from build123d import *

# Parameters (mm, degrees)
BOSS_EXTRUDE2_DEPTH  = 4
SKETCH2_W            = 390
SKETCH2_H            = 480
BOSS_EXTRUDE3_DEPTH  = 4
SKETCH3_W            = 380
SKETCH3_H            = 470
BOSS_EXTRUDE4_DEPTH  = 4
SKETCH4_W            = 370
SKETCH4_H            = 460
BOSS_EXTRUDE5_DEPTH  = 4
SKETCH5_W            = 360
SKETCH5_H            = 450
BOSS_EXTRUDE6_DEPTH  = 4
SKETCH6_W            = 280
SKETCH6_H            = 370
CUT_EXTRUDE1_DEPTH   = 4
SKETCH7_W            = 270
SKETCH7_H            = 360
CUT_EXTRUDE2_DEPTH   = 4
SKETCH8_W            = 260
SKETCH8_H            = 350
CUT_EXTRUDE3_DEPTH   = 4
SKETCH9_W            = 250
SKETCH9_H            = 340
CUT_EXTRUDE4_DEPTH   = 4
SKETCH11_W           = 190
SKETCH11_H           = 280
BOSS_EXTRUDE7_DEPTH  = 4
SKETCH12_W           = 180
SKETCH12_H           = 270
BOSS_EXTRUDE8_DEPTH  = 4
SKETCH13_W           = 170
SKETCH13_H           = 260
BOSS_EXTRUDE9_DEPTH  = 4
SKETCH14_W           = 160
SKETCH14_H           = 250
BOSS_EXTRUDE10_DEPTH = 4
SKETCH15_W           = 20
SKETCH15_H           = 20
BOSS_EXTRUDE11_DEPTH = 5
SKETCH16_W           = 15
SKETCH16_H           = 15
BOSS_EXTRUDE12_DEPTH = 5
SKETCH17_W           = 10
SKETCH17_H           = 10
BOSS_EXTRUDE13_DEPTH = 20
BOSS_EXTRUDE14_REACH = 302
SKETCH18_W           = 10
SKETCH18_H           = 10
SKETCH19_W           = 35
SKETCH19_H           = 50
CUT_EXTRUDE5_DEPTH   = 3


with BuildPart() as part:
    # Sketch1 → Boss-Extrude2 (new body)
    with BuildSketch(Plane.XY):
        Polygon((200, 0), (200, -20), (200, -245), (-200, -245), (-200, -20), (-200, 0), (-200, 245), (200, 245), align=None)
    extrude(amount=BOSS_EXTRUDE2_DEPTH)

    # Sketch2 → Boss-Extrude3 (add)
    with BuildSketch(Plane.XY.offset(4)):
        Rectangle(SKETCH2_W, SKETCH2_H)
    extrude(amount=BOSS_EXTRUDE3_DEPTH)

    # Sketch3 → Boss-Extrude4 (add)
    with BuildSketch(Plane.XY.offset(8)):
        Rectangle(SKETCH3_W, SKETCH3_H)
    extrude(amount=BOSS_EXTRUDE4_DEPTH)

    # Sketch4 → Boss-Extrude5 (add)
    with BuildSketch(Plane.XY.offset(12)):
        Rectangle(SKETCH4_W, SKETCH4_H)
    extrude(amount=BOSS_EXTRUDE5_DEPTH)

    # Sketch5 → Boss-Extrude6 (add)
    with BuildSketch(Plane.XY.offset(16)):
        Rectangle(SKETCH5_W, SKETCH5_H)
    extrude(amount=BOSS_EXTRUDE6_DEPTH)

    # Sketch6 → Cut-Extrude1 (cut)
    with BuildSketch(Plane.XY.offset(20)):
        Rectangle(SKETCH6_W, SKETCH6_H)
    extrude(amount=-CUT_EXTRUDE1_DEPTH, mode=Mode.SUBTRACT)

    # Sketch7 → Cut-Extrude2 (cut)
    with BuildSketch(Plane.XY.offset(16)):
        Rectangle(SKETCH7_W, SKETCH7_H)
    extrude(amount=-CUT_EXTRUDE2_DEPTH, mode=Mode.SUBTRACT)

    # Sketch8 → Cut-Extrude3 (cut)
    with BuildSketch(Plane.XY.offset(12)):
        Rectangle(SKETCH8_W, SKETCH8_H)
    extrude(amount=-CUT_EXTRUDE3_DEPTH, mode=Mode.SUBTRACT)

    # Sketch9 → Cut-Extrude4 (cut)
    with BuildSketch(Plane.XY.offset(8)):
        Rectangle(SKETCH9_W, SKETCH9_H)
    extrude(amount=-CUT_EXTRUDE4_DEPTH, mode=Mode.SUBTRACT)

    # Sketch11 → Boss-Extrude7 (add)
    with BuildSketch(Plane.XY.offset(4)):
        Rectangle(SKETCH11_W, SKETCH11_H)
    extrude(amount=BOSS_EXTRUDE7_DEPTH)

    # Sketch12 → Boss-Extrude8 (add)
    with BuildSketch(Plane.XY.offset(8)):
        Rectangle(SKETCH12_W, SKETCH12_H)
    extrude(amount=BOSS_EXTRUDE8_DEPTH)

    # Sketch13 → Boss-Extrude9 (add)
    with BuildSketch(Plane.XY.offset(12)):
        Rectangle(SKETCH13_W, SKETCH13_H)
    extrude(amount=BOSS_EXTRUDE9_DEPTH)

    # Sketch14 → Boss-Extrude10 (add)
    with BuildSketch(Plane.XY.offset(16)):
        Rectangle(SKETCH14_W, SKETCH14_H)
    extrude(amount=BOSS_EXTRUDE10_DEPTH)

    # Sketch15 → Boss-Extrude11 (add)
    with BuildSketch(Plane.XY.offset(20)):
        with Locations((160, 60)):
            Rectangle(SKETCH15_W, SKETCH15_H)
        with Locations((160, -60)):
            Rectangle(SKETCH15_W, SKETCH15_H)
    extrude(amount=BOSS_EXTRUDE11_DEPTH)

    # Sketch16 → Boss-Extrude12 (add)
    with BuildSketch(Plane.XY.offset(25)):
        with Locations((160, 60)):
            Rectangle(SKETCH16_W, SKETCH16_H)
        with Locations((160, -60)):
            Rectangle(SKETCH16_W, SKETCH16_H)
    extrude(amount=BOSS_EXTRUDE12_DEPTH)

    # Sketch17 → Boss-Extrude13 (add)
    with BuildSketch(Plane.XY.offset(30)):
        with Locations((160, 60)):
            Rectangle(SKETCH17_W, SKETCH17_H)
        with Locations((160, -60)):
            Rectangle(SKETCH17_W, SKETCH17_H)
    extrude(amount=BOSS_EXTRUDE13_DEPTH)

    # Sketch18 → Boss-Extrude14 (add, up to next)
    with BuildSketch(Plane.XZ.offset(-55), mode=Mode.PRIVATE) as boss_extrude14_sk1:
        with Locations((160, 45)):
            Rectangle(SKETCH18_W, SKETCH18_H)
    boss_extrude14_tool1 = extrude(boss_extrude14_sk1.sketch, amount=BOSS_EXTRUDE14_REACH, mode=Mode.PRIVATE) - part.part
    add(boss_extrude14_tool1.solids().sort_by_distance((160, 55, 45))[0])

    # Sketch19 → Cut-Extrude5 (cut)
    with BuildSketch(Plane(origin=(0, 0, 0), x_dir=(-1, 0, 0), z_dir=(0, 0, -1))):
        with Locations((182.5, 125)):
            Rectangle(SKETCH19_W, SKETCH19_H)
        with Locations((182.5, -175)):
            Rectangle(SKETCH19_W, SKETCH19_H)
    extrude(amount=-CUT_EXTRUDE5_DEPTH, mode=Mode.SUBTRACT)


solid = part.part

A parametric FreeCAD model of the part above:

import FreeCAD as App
import Part
import Sketcher


def add_polygon(sketch, points):
    """Adds a closed chain of lines whose ends are joined by coincident constraints."""
    first, n = sketch.GeometryCount, len(points)
    for a, b in zip(points, points[1:] + points[:1]):
        sketch.addGeometry(Part.LineSegment(App.Vector(*a, 0), App.Vector(*b, 0)), False)
    for i in range(n):
        sketch.addConstraint(Sketcher.Constraint("Coincident", first + i, 2, first + (i + 1) % n, 1))

doc = App.newDocument("Part")
body = doc.addObject("PartDesign::Body", "Body")

sketch1 = body.newObject("Sketcher::SketchObject", "Sketch")
sketch1.AttachmentSupport = (doc.getObject("XY_Plane"), [""])
sketch1.MapMode = "FlatFace"
add_polygon(sketch1, [(200, -245), (200, 245), (-200, 245), (-200, -245)])
sketch1.addConstraint([
    Sketcher.Constraint("Vertical", 0),
    Sketcher.Constraint("Horizontal", 1),
    Sketcher.Constraint("Vertical", 2),
    Sketcher.Constraint("Horizontal", 3),
    Sketcher.Constraint("Symmetric", 0, 2, 2, 2, -1, 1),
    Sketcher.Constraint("DistanceX", 1, 2, 1, 1, 400.0),
    Sketcher.Constraint("DistanceY", 0, 1, 0, 2, 490.0),
])
pad1 = body.newObject("PartDesign::Pad", "Pad")
pad1.Profile = sketch1
pad1.Length = 4

sketch2 = body.newObject("Sketcher::SketchObject", "Sketch001")
sketch2.AttachmentSupport = (doc.getObject("XY_Plane"), [""])
sketch2.MapMode = "FlatFace"
sketch2.AttachmentOffset = App.Placement(App.Vector(0, 0, 4), App.Rotation())
add_polygon(sketch2, [(-195, 240), (-195, -240), (195, -240), (195, 240)])
sketch2.addConstraint([
    Sketcher.Constraint("Vertical", 0),
    Sketcher.Constraint("Horizontal", 1),
    Sketcher.Constraint("Vertical", 2),
    Sketcher.Constraint("Horizontal", 3),
    Sketcher.Constraint("Symmetric", 0, 2, 2, 2, -1, 1),
    Sketcher.Constraint("DistanceX", 1, 1, 1, 2, 390.0),
    Sketcher.Constraint("DistanceY", 0, 2, 0, 1, 480.0),
])
pad2 = body.newObject("PartDesign::Pad", "Pad001")
pad2.Profile = sketch2
pad2.Length = 4

sketch3 = body.newObject("Sketcher::SketchObject", "Sketch002")
sketch3.AttachmentSupport = (doc.getObject("XY_Plane"), [""])
sketch3.MapMode = "FlatFace"
sketch3.AttachmentOffset = App.Placement(App.Vector(0, 0, 8), App.Rotation())
add_polygon(sketch3, [(-190, 235), (-190, -235), (190, -235), (190, 235)])
sketch3.addConstraint([
    Sketcher.Constraint("Vertical", 0),
    Sketcher.Constraint("Horizontal", 1),
    Sketcher.Constraint("Vertical", 2),
    Sketcher.Constraint("Horizontal", 3),
    Sketcher.Constraint("Symmetric", 0, 2, 2, 2, -1, 1),
    Sketcher.Constraint("DistanceX", 1, 1, 1, 2, 380.0),
    Sketcher.Constraint("DistanceY", 0, 2, 0, 1, 470.0),
])
pad3 = body.newObject("PartDesign::Pad", "Pad002")
pad3.Profile = sketch3
pad3.Length = 4

sketch4 = body.newObject("Sketcher::SketchObject", "Sketch003")
sketch4.AttachmentSupport = (doc.getObject("XY_Plane"), [""])
sketch4.MapMode = "FlatFace"
sketch4.AttachmentOffset = App.Placement(App.Vector(0, 0, 12), App.Rotation())
add_polygon(sketch4, [(-185, 230), (-185, -230), (185, -230), (185, 230)])
sketch4.addConstraint([
    Sketcher.Constraint("Vertical", 0),
    Sketcher.Constraint("Horizontal", 1),
    Sketcher.Constraint("Vertical", 2),
    Sketcher.Constraint("Horizontal", 3),
    Sketcher.Constraint("Symmetric", 0, 2, 2, 2, -1, 1),
    Sketcher.Constraint("DistanceX", 1, 1, 1, 2, 370.0),
    Sketcher.Constraint("DistanceY", 0, 2, 0, 1, 460.0),
])
pad4 = body.newObject("PartDesign::Pad", "Pad003")
pad4.Profile = sketch4
pad4.Length = 4

sketch5 = body.newObject("Sketcher::SketchObject", "Sketch004")
sketch5.AttachmentSupport = (doc.getObject("XY_Plane"), [""])
sketch5.MapMode = "FlatFace"
sketch5.AttachmentOffset = App.Placement(App.Vector(0, 0, 16), App.Rotation())
add_polygon(sketch5, [(-180, 225), (-180, -225), (180, -225), (180, 225)])
sketch5.addConstraint([
    Sketcher.Constraint("Vertical", 0),
    Sketcher.Constraint("Horizontal", 1),
    Sketcher.Constraint("Vertical", 2),
    Sketcher.Constraint("Horizontal", 3),
    Sketcher.Constraint("Symmetric", 0, 2, 2, 2, -1, 1),
    Sketcher.Constraint("DistanceX", 1, 1, 1, 2, 360.0),
    Sketcher.Constraint("DistanceY", 0, 2, 0, 1, 450.0),
])
pad5 = body.newObject("PartDesign::Pad", "Pad004")
pad5.Profile = sketch5
pad5.Length = 4

sketch6 = body.newObject("Sketcher::SketchObject", "Sketch005")
sketch6.AttachmentSupport = (doc.getObject("XY_Plane"), [""])
sketch6.MapMode = "FlatFace"
sketch6.AttachmentOffset = App.Placement(App.Vector(0, 0, 20), App.Rotation())
add_polygon(sketch6, [(-140, 185), (-140, -185), (140, -185), (140, 185)])
sketch6.addConstraint([
    Sketcher.Constraint("Vertical", 0),
    Sketcher.Constraint("Horizontal", 1),
    Sketcher.Constraint("Vertical", 2),
    Sketcher.Constraint("Horizontal", 3),
    Sketcher.Constraint("Symmetric", 0, 2, 2, 2, -1, 1),
    Sketcher.Constraint("DistanceX", 1, 1, 1, 2, 280.0),
    Sketcher.Constraint("DistanceY", 0, 2, 0, 1, 370.0),
])
pocket1 = body.newObject("PartDesign::Pocket", "Pocket")
pocket1.Profile = sketch6
pocket1.Length = 4

sketch7 = body.newObject("Sketcher::SketchObject", "Sketch006")
sketch7.AttachmentSupport = (doc.getObject("XY_Plane"), [""])
sketch7.MapMode = "FlatFace"
sketch7.AttachmentOffset = App.Placement(App.Vector(0, 0, 16), App.Rotation())
add_polygon(sketch7, [(-135, 180), (-135, -180), (135, -180), (135, 180)])
sketch7.addConstraint([
    Sketcher.Constraint("Vertical", 0),
    Sketcher.Constraint("Horizontal", 1),
    Sketcher.Constraint("Vertical", 2),
    Sketcher.Constraint("Horizontal", 3),
    Sketcher.Constraint("Symmetric", 0, 2, 2, 2, -1, 1),
    Sketcher.Constraint("DistanceX", 1, 1, 1, 2, 270.0),
    Sketcher.Constraint("DistanceY", 0, 2, 0, 1, 360.0),
])
pocket2 = body.newObject("PartDesign::Pocket", "Pocket001")
pocket2.Profile = sketch7
pocket2.Length = 4

sketch8 = body.newObject("Sketcher::SketchObject", "Sketch007")
sketch8.AttachmentSupport = (doc.getObject("XY_Plane"), [""])
sketch8.MapMode = "FlatFace"
sketch8.AttachmentOffset = App.Placement(App.Vector(0, 0, 12), App.Rotation())
add_polygon(sketch8, [(-130, 175), (-130, -175), (130, -175), (130, 175)])
sketch8.addConstraint([
    Sketcher.Constraint("Vertical", 0),
    Sketcher.Constraint("Horizontal", 1),
    Sketcher.Constraint("Vertical", 2),
    Sketcher.Constraint("Horizontal", 3),
    Sketcher.Constraint("Symmetric", 0, 2, 2, 2, -1, 1),
    Sketcher.Constraint("DistanceX", 1, 1, 1, 2, 260.0),
    Sketcher.Constraint("DistanceY", 0, 2, 0, 1, 350.0),
])
pocket3 = body.newObject("PartDesign::Pocket", "Pocket002")
pocket3.Profile = sketch8
pocket3.Length = 4

sketch9 = body.newObject("Sketcher::SketchObject", "Sketch008")
sketch9.AttachmentSupport = (doc.getObject("XY_Plane"), [""])
sketch9.MapMode = "FlatFace"
sketch9.AttachmentOffset = App.Placement(App.Vector(0, 0, 8), App.Rotation())
add_polygon(sketch9, [(-125, 170), (-125, -170), (125, -170), (125, 170)])
sketch9.addConstraint([
    Sketcher.Constraint("Vertical", 0),
    Sketcher.Constraint("Horizontal", 1),
    Sketcher.Constraint("Vertical", 2),
    Sketcher.Constraint("Horizontal", 3),
    Sketcher.Constraint("Symmetric", 0, 2, 2, 2, -1, 1),
    Sketcher.Constraint("DistanceX", 1, 1, 1, 2, 250.0),
    Sketcher.Constraint("DistanceY", 0, 2, 0, 1, 340.0),
])
pocket4 = body.newObject("PartDesign::Pocket", "Pocket003")
pocket4.Profile = sketch9
pocket4.Length = 4

sketch10 = body.newObject("Sketcher::SketchObject", "Sketch009")
sketch10.AttachmentSupport = (doc.getObject("XY_Plane"), [""])
sketch10.MapMode = "FlatFace"
sketch10.AttachmentOffset = App.Placement(App.Vector(0, 0, 4), App.Rotation())
add_polygon(sketch10, [(-95, 140), (-95, -140), (95, -140), (95, 140)])
sketch10.addConstraint([
    Sketcher.Constraint("Vertical", 0),
    Sketcher.Constraint("Horizontal", 1),
    Sketcher.Constraint("Vertical", 2),
    Sketcher.Constraint("Horizontal", 3),
    Sketcher.Constraint("Symmetric", 0, 2, 2, 2, -1, 1),
    Sketcher.Constraint("DistanceX", 1, 1, 1, 2, 190.0),
    Sketcher.Constraint("DistanceY", 0, 2, 0, 1, 280.0),
])
pad6 = body.newObject("PartDesign::Pad", "Pad005")
pad6.Profile = sketch10
pad6.Length = 4

sketch11 = body.newObject("Sketcher::SketchObject", "Sketch010")
sketch11.AttachmentSupport = (doc.getObject("XY_Plane"), [""])
sketch11.MapMode = "FlatFace"
sketch11.AttachmentOffset = App.Placement(App.Vector(0, 0, 8), App.Rotation())
add_polygon(sketch11, [(-90, 135), (-90, -135), (90, -135), (90, 135)])
sketch11.addConstraint([
    Sketcher.Constraint("Vertical", 0),
    Sketcher.Constraint("Horizontal", 1),
    Sketcher.Constraint("Vertical", 2),
    Sketcher.Constraint("Horizontal", 3),
    Sketcher.Constraint("Symmetric", 0, 2, 2, 2, -1, 1),
    Sketcher.Constraint("DistanceX", 1, 1, 1, 2, 180.0),
    Sketcher.Constraint("DistanceY", 0, 2, 0, 1, 270.0),
])
pad7 = body.newObject("PartDesign::Pad", "Pad006")
pad7.Profile = sketch11
pad7.Length = 4

sketch12 = body.newObject("Sketcher::SketchObject", "Sketch011")
sketch12.AttachmentSupport = (doc.getObject("XY_Plane"), [""])
sketch12.MapMode = "FlatFace"
sketch12.AttachmentOffset = App.Placement(App.Vector(0, 0, 12), App.Rotation())
add_polygon(sketch12, [(-85, 130), (-85, -130), (85, -130), (85, 130)])
sketch12.addConstraint([
    Sketcher.Constraint("Vertical", 0),
    Sketcher.Constraint("Horizontal", 1),
    Sketcher.Constraint("Vertical", 2),
    Sketcher.Constraint("Horizontal", 3),
    Sketcher.Constraint("Symmetric", 0, 2, 2, 2, -1, 1),
    Sketcher.Constraint("DistanceX", 1, 1, 1, 2, 170.0),
    Sketcher.Constraint("DistanceY", 0, 2, 0, 1, 260.0),
])
pad8 = body.newObject("PartDesign::Pad", "Pad007")
pad8.Profile = sketch12
pad8.Length = 4

sketch13 = body.newObject("Sketcher::SketchObject", "Sketch012")
sketch13.AttachmentSupport = (doc.getObject("XY_Plane"), [""])
sketch13.MapMode = "FlatFace"
sketch13.AttachmentOffset = App.Placement(App.Vector(0, 0, 16), App.Rotation())
add_polygon(sketch13, [(-80, 125), (-80, -125), (80, -125), (80, 125)])
sketch13.addConstraint([
    Sketcher.Constraint("Vertical", 0),
    Sketcher.Constraint("Horizontal", 1),
    Sketcher.Constraint("Vertical", 2),
    Sketcher.Constraint("Horizontal", 3),
    Sketcher.Constraint("Symmetric", 0, 2, 2, 2, -1, 1),
    Sketcher.Constraint("DistanceX", 1, 1, 1, 2, 160.0),
    Sketcher.Constraint("DistanceY", 0, 2, 0, 1, 250.0),
])
pad9 = body.newObject("PartDesign::Pad", "Pad008")
pad9.Profile = sketch13
pad9.Length = 4

sketch14 = body.newObject("Sketcher::SketchObject", "Sketch013")
sketch14.AttachmentSupport = (doc.getObject("XY_Plane"), [""])
sketch14.MapMode = "FlatFace"
sketch14.AttachmentOffset = App.Placement(App.Vector(0, 0, 20), App.Rotation())
add_polygon(sketch14, [(150, 70), (150, 50), (170, 50), (170, 70)])
add_polygon(sketch14, [(150, -50), (150, -70), (170, -70), (170, -50)])
sketch14.addConstraint([
    Sketcher.Constraint("Vertical", 0),
    Sketcher.Constraint("Horizontal", 1),
    Sketcher.Constraint("Vertical", 2),
    Sketcher.Constraint("Horizontal", 3),
    Sketcher.Constraint("Vertical", 4),
    Sketcher.Constraint("Horizontal", 5),
    Sketcher.Constraint("Vertical", 6),
    Sketcher.Constraint("Horizontal", 7),
    Sketcher.Constraint("Symmetric", 3, 2, 4, 2, -1),
    Sketcher.Constraint("Symmetric", 1, 2, 6, 2, -1),
    Sketcher.Constraint("Equal", 7, 0),
    Sketcher.Constraint("DistanceX", 1, 1, 1, 2, 20.0),
    Sketcher.Constraint("DistanceX", -1, 1, 0, 2, 150.0),
    Sketcher.Constraint("DistanceY", -1, 1, 0, 2, 50.0),
])
pad10 = body.newObject("PartDesign::Pad", "Pad009")
pad10.Profile = sketch14
pad10.Length = 5

sketch15 = body.newObject("Sketcher::SketchObject", "Sketch014")
sketch15.AttachmentSupport = (doc.getObject("XY_Plane"), [""])
sketch15.MapMode = "FlatFace"
sketch15.AttachmentOffset = App.Placement(App.Vector(0, 0, 25), App.Rotation())
add_polygon(sketch15, [(152, 68), (152, 52), (168, 52), (168, 68)])
add_polygon(sketch15, [(152, -52), (152, -68), (168, -68), (168, -52)])
sketch15.addConstraint([
    Sketcher.Constraint("Vertical", 0),
    Sketcher.Constraint("Horizontal", 1),
    Sketcher.Constraint("Vertical", 2),
    Sketcher.Constraint("Horizontal", 3),
    Sketcher.Constraint("Vertical", 4),
    Sketcher.Constraint("Horizontal", 5),
    Sketcher.Constraint("Vertical", 6),
    Sketcher.Constraint("Horizontal", 7),
    Sketcher.Constraint("Symmetric", 3, 2, 4, 2, -1),
    Sketcher.Constraint("Symmetric", 1, 2, 6, 2, -1),
    Sketcher.Constraint("Equal", 7, 0),
    Sketcher.Constraint("DistanceX", 1, 1, 1, 2, 15.0),
    Sketcher.Constraint("DistanceY", 4, 2, 0, 2, 120.0),
    Sketcher.Constraint("DistanceX", -1, 1, 0, 2, 152.5),
])
pad11 = body.newObject("PartDesign::Pad", "Pad010")
pad11.Profile = sketch15
pad11.Length = 5

sketch16 = body.newObject("Sketcher::SketchObject", "Sketch015")
sketch16.AttachmentSupport = (doc.getObject("XY_Plane"), [""])
sketch16.MapMode = "FlatFace"
sketch16.AttachmentOffset = App.Placement(App.Vector(0, 0, 30), App.Rotation())
add_polygon(sketch16, [(155, 65), (155, 55), (165, 55), (165, 65)])
add_polygon(sketch16, [(155, -55), (155, -65), (165, -65), (165, -55)])
sketch16.addConstraint([
    Sketcher.Constraint("Vertical", 0),
    Sketcher.Constraint("Horizontal", 1),
    Sketcher.Constraint("Vertical", 2),
    Sketcher.Constraint("Horizontal", 3),
    Sketcher.Constraint("Vertical", 4),
    Sketcher.Constraint("Horizontal", 5),
    Sketcher.Constraint("Vertical", 6),
    Sketcher.Constraint("Horizontal", 7),
    Sketcher.Constraint("Symmetric", 3, 2, 4, 2, -1),
    Sketcher.Constraint("Symmetric", 1, 2, 6, 2, -1),
    Sketcher.Constraint("Equal", 7, 0),
    Sketcher.Constraint("DistanceX", 1, 1, 1, 2, 10.0),
    Sketcher.Constraint("DistanceX", -1, 1, 0, 2, 155.0),
    Sketcher.Constraint("DistanceY", -1, 1, 0, 2, 55.0),
])
pad12 = body.newObject("PartDesign::Pad", "Pad011")
pad12.Profile = sketch16
pad12.Length = 20

sketch17 = body.newObject("Sketcher::SketchObject", "Sketch016")
sketch17.AttachmentSupport = (doc.getObject("XZ_Plane"), [""])
sketch17.MapMode = "FlatFace"
sketch17.AttachmentOffset = App.Placement(App.Vector(0, 0, -55), App.Rotation())
add_polygon(sketch17, [(155, 50), (155, 40), (165, 40), (165, 50)])
sketch17.addConstraint([
    Sketcher.Constraint("Vertical", 0),
    Sketcher.Constraint("Horizontal", 1),
    Sketcher.Constraint("Vertical", 2),
    Sketcher.Constraint("Horizontal", 3),
    Sketcher.Constraint("Equal", 3, 0),
    Sketcher.Constraint("DistanceX", 1, 1, 1, 2, 10.0),
    Sketcher.Constraint("DistanceX", -1, 1, 0, 2, 155.0),
    Sketcher.Constraint("DistanceY", -1, 1, 0, 2, 40.0),
])
pad13 = body.newObject("PartDesign::Pad", "Pad012")
pad13.Profile = sketch17
pad13.Type = "UpToFirst"

sketch18 = body.newObject("Sketcher::SketchObject", "Sketch017")
sketch18.AttachmentSupport = (doc.getObject("XY_Plane"), [""])
sketch18.MapMode = "FlatFace"
add_polygon(sketch18, [(-165, 150), (-165, 100), (-200, 100), (-200, 150)])
add_polygon(sketch18, [(-165, -150), (-165, -200), (-200, -200), (-200, -150)])
sketch18.addConstraint([
    Sketcher.Constraint("Vertical", 0),
    Sketcher.Constraint("Horizontal", 1),
    Sketcher.Constraint("Vertical", 2),
    Sketcher.Constraint("Horizontal", 3),
    Sketcher.Constraint("Vertical", 4),
    Sketcher.Constraint("Horizontal", 5),
    Sketcher.Constraint("Vertical", 6),
    Sketcher.Constraint("Horizontal", 7),
    Sketcher.Constraint("Symmetric", 2, 2, 6, 2, -1),
    Sketcher.Constraint("Vertical", 3, 2, 4, 2),
    Sketcher.Constraint("Equal", 2, 4),
    Sketcher.Constraint("DistanceX", 1, 2, 1, 1, 35.0),
    Sketcher.Constraint("DistanceY", 0, 2, 0, 1, 50.0),
    Sketcher.Constraint("DistanceX", 0, 2, -1, 1, 165.0),
    Sketcher.Constraint("DistanceY", -1, 1, 0, 2, 100.0),
])
pocket5 = body.newObject("PartDesign::Pocket", "Pocket004")
pocket5.Profile = sketch18
pocket5.Length = 3
pocket5.Reversed = True

doc.recompute()
